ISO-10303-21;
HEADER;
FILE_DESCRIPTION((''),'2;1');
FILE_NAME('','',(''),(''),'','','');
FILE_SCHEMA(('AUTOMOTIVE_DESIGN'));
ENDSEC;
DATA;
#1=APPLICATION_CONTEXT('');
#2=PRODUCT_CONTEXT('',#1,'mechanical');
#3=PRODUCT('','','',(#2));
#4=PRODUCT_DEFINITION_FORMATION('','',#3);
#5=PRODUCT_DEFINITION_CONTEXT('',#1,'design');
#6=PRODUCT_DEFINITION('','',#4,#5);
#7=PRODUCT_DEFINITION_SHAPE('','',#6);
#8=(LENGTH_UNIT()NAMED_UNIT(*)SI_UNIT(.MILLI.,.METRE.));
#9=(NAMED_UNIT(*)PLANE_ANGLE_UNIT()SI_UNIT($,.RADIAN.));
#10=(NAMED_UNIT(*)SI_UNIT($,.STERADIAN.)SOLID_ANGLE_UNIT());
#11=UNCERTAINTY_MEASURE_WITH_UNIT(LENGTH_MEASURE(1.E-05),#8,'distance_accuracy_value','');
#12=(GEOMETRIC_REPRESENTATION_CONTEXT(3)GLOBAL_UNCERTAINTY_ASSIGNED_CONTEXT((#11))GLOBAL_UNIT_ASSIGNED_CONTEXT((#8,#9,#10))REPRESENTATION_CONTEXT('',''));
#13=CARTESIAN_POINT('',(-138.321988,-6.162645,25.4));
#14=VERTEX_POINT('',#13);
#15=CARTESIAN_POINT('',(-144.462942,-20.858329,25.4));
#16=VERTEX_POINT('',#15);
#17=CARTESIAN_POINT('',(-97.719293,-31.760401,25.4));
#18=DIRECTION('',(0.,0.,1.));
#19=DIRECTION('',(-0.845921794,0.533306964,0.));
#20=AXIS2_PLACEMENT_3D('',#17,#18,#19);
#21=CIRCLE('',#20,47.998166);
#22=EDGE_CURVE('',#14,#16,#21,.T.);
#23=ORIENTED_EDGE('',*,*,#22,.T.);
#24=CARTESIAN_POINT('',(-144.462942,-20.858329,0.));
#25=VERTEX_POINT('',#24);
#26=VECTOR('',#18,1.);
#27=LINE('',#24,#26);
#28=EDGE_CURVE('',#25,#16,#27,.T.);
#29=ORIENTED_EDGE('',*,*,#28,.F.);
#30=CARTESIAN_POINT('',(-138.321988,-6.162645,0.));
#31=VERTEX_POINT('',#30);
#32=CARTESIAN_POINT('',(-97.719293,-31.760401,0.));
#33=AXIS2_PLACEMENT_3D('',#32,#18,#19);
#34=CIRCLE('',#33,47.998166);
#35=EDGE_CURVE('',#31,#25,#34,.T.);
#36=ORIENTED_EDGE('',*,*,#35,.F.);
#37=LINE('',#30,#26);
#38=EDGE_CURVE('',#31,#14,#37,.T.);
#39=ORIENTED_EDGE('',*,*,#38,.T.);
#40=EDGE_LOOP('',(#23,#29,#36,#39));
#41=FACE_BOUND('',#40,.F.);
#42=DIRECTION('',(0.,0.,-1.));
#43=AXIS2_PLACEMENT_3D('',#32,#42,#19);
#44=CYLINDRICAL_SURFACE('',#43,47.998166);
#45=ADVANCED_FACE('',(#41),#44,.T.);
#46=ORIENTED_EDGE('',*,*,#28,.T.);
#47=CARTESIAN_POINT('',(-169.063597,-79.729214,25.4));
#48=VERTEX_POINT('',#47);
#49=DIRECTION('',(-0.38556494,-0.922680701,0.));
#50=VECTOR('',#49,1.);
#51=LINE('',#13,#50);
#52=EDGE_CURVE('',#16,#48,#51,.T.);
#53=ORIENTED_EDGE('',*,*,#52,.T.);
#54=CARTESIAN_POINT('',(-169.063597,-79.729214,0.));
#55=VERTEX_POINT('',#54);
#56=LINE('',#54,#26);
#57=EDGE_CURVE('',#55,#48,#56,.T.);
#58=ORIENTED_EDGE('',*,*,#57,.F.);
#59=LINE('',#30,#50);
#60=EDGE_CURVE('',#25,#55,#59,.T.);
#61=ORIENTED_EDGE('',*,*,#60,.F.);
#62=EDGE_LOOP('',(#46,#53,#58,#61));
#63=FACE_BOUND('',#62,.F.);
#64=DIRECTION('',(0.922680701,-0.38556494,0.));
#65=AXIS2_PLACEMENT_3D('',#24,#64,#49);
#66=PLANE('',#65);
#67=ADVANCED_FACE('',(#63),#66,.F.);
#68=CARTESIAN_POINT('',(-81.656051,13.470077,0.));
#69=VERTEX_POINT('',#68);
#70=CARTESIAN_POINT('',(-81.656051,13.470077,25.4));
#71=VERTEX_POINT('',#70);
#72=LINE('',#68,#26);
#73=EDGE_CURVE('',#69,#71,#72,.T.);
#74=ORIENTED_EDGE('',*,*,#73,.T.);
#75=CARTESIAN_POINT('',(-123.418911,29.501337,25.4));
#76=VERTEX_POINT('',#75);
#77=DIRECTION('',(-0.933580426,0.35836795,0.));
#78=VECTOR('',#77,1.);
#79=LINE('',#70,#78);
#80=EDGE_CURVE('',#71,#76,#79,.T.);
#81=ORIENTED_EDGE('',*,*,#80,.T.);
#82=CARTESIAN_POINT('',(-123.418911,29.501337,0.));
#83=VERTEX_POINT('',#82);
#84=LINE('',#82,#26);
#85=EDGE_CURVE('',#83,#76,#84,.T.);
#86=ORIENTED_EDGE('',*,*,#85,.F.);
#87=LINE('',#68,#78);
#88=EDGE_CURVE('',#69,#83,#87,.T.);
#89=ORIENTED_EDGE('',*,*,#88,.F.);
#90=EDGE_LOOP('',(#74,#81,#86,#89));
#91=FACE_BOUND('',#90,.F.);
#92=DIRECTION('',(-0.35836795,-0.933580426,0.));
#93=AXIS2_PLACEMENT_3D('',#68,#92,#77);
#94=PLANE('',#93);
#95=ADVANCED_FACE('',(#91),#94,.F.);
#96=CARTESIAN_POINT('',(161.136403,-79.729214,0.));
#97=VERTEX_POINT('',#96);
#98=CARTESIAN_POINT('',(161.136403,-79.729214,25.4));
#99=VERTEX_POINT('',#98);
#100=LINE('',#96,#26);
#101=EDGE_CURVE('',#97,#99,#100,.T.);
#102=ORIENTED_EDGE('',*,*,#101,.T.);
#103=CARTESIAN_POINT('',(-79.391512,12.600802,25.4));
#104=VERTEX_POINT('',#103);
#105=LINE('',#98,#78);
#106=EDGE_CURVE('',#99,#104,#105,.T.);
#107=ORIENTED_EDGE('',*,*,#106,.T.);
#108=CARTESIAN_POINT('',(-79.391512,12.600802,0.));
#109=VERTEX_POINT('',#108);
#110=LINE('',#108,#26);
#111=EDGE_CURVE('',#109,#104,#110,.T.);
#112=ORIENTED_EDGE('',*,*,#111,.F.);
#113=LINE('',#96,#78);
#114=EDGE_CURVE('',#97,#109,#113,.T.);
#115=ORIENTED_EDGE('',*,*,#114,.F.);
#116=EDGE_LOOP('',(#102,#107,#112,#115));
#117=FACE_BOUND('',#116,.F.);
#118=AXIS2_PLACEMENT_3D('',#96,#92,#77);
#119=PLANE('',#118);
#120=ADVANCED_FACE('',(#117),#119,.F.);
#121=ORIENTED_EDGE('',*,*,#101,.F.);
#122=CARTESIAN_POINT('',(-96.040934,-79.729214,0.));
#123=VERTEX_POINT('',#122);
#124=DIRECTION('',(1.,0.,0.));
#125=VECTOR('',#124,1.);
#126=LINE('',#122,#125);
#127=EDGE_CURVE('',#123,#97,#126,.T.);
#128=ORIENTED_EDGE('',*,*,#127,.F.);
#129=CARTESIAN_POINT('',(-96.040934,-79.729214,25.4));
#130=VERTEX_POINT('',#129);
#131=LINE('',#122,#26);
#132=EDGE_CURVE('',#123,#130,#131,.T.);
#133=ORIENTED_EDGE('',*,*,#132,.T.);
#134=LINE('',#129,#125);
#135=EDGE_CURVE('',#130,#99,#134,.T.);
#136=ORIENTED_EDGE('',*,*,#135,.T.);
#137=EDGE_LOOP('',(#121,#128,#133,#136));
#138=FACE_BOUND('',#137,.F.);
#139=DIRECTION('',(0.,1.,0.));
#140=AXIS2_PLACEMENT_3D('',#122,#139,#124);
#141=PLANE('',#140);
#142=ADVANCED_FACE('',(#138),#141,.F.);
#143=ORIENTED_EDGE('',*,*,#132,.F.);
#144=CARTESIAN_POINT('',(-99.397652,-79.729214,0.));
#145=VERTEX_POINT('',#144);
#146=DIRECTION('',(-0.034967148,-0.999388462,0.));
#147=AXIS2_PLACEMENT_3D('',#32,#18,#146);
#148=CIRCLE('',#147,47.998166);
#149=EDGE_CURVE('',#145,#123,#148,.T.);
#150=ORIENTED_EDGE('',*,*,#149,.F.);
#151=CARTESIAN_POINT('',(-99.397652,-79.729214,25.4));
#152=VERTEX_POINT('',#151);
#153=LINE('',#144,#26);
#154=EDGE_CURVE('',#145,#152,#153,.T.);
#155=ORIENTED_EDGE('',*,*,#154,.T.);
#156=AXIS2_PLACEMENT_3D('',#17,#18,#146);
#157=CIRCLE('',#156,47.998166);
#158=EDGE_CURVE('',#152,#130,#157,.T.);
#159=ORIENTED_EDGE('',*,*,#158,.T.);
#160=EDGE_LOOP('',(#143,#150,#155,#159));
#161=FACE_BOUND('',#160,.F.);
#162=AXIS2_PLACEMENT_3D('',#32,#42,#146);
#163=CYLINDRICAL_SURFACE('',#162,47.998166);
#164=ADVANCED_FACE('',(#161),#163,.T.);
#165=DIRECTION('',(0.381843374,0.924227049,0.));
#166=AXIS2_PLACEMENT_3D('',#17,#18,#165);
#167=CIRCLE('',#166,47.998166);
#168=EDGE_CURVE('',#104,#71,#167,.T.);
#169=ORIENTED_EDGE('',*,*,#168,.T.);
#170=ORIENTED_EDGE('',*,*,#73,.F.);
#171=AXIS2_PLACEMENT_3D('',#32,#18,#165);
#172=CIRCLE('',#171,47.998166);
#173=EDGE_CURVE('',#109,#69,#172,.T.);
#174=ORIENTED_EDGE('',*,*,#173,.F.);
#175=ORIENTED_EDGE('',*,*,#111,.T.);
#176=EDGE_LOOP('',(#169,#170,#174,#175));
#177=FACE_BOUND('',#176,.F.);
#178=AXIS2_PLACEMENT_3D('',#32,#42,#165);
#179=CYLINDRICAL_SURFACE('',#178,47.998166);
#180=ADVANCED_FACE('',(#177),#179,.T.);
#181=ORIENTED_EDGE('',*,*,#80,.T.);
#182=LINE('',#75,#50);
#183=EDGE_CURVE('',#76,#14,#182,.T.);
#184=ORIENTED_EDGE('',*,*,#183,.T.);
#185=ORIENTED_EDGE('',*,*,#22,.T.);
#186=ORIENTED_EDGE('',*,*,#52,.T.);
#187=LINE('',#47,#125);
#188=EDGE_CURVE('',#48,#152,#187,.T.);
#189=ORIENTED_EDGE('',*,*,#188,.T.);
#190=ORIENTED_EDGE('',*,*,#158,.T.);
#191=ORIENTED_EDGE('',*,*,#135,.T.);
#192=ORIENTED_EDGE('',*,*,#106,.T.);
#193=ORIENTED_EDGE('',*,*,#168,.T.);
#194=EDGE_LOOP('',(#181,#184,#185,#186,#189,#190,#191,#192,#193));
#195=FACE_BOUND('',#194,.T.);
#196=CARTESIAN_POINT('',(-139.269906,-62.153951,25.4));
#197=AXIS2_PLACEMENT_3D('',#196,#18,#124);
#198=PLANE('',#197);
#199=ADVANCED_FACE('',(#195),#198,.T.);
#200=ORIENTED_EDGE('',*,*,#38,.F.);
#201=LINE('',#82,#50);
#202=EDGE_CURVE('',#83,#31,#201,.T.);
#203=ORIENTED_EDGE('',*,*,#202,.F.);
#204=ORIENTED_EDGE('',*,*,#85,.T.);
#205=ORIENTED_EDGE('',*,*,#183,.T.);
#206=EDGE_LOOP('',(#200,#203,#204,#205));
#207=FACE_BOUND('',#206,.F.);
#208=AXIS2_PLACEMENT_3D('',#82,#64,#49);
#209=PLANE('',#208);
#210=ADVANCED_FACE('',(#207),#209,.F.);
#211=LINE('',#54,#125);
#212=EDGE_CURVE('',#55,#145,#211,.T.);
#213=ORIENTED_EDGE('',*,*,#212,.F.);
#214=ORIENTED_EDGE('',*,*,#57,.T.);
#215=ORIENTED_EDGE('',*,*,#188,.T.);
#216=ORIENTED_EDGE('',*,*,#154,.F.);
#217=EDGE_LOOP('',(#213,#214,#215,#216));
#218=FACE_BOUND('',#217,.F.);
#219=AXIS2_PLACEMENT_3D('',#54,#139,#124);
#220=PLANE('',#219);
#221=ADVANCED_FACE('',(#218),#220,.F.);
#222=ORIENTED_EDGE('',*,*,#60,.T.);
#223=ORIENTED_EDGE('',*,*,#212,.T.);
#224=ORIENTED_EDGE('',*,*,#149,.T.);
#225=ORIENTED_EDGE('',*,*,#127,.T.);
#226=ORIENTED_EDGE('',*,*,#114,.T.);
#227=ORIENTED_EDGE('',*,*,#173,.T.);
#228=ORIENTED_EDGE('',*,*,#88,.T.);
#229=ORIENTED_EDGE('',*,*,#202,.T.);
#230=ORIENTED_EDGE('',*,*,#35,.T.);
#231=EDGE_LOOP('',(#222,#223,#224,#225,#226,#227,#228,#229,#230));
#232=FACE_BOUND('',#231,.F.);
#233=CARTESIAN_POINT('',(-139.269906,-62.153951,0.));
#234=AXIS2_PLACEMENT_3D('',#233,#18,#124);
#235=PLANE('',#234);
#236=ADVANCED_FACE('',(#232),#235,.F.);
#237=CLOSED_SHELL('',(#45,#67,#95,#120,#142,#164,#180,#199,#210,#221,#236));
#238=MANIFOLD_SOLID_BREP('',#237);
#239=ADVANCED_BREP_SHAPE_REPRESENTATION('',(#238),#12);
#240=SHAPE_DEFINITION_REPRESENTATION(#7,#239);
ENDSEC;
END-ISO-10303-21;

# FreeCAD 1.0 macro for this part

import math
import FreeCAD as App
import Part
import Sketcher
Q = App.Units.Quantity

doc = App.newDocument("Part")
body = doc.addObject("PartDesign::Body", "Body")

sketch1 = body.newObject("Sketcher::SketchObject", "Sketch")
sketch1.AttachmentSupport = (doc.getObject("XY_Plane"), [""])
sketch1.MapMode = "FlatFace"
sketch1.addGeometry(Part.LineSegment(App.Vector(-169.1, -79.7, 0), App.Vector(-99.4, -79.7, 0)), False)
sketch1.addGeometry(Part.ArcOfCircle(Part.Circle(App.Vector(-97.7, -31.8, 0), App.Vector(0, 0, 1), 48), math.radians(-92), math.radians(-88)), False)
sketch1.addGeometry(Part.LineSegment(App.Vector(-96, -79.7, 0), App.Vector(161.1, -79.7, 0)), False)
sketch1.addGeometry(Part.LineSegment(App.Vector(161.1, -79.7, 0), App.Vector(-79.4, 12.6, 0)), False)
sketch1.addGeometry(Part.ArcOfCircle(Part.Circle(App.Vector(-97.7, -31.8, 0), App.Vector(0, 0, 1), 48), math.radians(67.55), math.radians(70.45)), False)
sketch1.addGeometry(Part.LineSegment(App.Vector(-81.7, 13.5, 0), App.Vector(-123.4, 29.5, 0)), False)
sketch1.addGeometry(Part.LineSegment(App.Vector(-123.4, 29.5, 0), App.Vector(-138.3, -6.2, 0)), False)
sketch1.addGeometry(Part.ArcOfCircle(Part.Circle(App.Vector(-97.7, -31.8, 0), App.Vector(0, 0, 1), 48), math.radians(147.77), math.radians(166.87)), False)
sketch1.addGeometry(Part.LineSegment(App.Vector(-144.5, -20.9, 0), App.Vector(-169.1, -79.7, 0)), False)
sketch1.addConstraint(Sketcher.Constraint("Coincident", 0, 2, 1, 1))
sketch1.addConstraint(Sketcher.Constraint("Coincident", 1, 2, 2, 1))
sketch1.addConstraint(Sketcher.Constraint("Coincident", 2, 2, 3, 1))
sketch1.addConstraint(Sketcher.Constraint("Coincident", 3, 2, 4, 1))
sketch1.addConstraint(Sketcher.Constraint("Coincident", 4, 2, 5, 1))
sketch1.addConstraint(Sketcher.Constraint("Coincident", 5, 2, 6, 1))
sketch1.addConstraint(Sketcher.Constraint("Coincident", 6, 2, 7, 1))
sketch1.addConstraint(Sketcher.Constraint("Coincident", 7, 2, 8, 1))
sketch1.addConstraint(Sketcher.Constraint("Coincident", 8, 2, 0, 1))
sketch1.addConstraint(Sketcher.Constraint("Horizontal", 0))
sketch1.addConstraint(Sketcher.Constraint("Horizontal", 2))
sketch1.addConstraint(Sketcher.Constraint("Coincident", 4, 3, 1, 3))
sketch1.addConstraint(Sketcher.Constraint("Coincident", 7, 3, 1, 3))
sketch1.addConstraint(Sketcher.Constraint("Equal", 1, 4))
sketch1.addConstraint(Sketcher.Constraint("Equal", 4, 7))
sketch1.addConstraint(Sketcher.Constraint("Parallel", 3, 5))
sketch1.addConstraint(Sketcher.Constraint("Parallel", 6, 8))
sketch1.addConstraint(Sketcher.Constraint("Horizontal", 0, 2, 1, 2))
sketch1.addConstraint(Sketcher.Constraint("Angle", 3, Q("159 deg")))
sketch1.addConstraint(Sketcher.Constraint("Radius", 1, 47.998166))
sketch1.addConstraint(Sketcher.Constraint("DistanceY", 1, 3, -1, 1, 31.760401))
sketch1.addConstraint(Sketcher.Constraint("DistanceY", -1, 1, 3, 2, 12.600802))
sketch1.addConstraint(Sketcher.Constraint("DistanceX", 5, 2, 3, 2, 44.027399))
sketch1.addConstraint(Sketcher.Constraint("Distance", 3, 257.640272))
sketch1.addConstraint(Sketcher.Constraint("Distance", 5, 44.734079))
sketch1.addConstraint(Sketcher.Constraint("Distance", 6, 38.652572))
sketch1.addConstraint(Sketcher.Constraint("Distance", 8, 63.80418))
sketch1.addConstraint(Sketcher.Constraint("DistanceX", 3, 2, -1, 1, 79.391512))
pad1 = body.newObject("PartDesign::Pad", "Pad")
pad1.Profile = sketch1
pad1.Length = Q("1 in")

doc.recompute()
